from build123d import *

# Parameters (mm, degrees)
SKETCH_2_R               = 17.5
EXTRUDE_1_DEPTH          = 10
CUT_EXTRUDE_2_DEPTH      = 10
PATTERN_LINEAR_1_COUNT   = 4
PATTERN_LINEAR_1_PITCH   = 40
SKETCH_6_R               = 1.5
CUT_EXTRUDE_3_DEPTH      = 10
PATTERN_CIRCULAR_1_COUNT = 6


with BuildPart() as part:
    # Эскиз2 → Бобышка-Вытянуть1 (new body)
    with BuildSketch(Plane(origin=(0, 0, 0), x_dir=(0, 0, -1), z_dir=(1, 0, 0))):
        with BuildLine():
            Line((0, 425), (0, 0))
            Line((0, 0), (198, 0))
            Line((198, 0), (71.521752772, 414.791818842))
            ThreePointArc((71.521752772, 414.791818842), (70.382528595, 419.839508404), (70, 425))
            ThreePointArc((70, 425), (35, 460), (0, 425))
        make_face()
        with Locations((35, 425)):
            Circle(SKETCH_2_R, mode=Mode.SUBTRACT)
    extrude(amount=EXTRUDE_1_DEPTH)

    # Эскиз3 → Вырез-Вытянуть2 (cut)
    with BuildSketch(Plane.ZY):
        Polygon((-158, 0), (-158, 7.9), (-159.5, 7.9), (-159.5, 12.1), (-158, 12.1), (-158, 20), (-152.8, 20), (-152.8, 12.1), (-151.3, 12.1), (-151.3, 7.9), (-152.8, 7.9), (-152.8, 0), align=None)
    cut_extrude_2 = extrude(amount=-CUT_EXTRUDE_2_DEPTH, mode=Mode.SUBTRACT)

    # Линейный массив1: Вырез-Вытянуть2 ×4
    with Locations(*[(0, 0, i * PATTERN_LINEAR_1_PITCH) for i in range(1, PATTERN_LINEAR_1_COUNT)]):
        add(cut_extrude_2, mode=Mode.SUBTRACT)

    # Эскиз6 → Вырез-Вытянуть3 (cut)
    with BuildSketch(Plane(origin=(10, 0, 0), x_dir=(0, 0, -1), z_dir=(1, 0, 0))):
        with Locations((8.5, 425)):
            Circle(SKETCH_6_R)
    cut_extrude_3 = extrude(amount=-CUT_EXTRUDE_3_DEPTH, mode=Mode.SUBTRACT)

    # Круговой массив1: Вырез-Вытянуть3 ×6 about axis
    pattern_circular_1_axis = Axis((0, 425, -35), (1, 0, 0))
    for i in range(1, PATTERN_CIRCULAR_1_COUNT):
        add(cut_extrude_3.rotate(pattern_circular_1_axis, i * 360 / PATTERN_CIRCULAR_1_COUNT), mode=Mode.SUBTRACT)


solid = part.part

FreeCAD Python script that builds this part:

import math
import FreeCAD as App
import Part
import Sketcher

V = App.Vector
Q = App.Units.Quantity

doc = App.newDocument("Part")
body = doc.addObject("PartDesign::Body", "Body")

# Sketch on YZ plane
sketch1 = body.newObject("Sketcher::SketchObject", "Sketch")
sketch1.AttachmentSupport = (doc.getObject("YZ_Plane"), [""])
sketch1.MapMode = "FlatFace"
sketch1.addGeometry(Part.LineSegment(V(425, 0, 0), V(0, 0, 0)), False)
sketch1.addGeometry(Part.LineSegment(V(0, 0, 0), V(0, -198, 0)), False)
sketch1.addGeometry(Part.LineSegment(V(0, -198, 0), V(414.791819, -71.521753, 0)), False)
sketch1.addGeometry(Part.ArcOfCircle(Part.Circle(V(425, -105, 0), V(0, 0, 1), 35), math.radians(90), math.radians(106.957503)), False)
sketch1.addGeometry(Part.ArcOfCircle(Part.Circle(V(425, -35, 0), V(0, 0, 1), 35), math.radians(-90), math.radians(90)), False)
sketch1.addGeometry(Part.Circle(V(425, -35, 0), V(0, 0, 1), 17.5), False)
sketch1.addConstraint(Sketcher.Constraint("Coincident", 0, 2, 1, 1))
sketch1.addConstraint(Sketcher.Constraint("Coincident", 1, 2, 2, 1))
sketch1.addConstraint(Sketcher.Constraint("Tangent", 2, 2, 3, 2))
sketch1.addConstraint(Sketcher.Constraint("Tangent", 3, 1, 4, 1))
sketch1.addConstraint(Sketcher.Constraint("Tangent", 4, 2, 0, 1))
sketch1.addConstraint(Sketcher.Constraint("Horizontal", 0))
sketch1.addConstraint(Sketcher.Constraint("Vertical", 1))
sketch1.addConstraint(Sketcher.Constraint("Coincident", 0, 2, -1, 1))
sketch1.addConstraint(Sketcher.Constraint("Coincident", 5, 3, 4, 3))
sketch1.addConstraint(Sketcher.Constraint("Equal", 3, 4))
sketch1.addConstraint(Sketcher.Constraint("Vertical", 3, 3, 4, 3))
sketch1.addConstraint(Sketcher.Constraint("Diameter", 5, Q("35 mm")))
sketch1.addConstraint(Sketcher.Constraint("Radius", 3, Q("35 mm")))
sketch1.addConstraint(Sketcher.Constraint("DistanceX", 0, 2, 0, 1, Q("425 mm")))
sketch1.addConstraint(Sketcher.Constraint("DistanceY", 1, 2, 1, 1, Q("198 mm")))
pad1 = body.newObject("PartDesign::Pad", "Pad")
pad1.Profile = sketch1
pad1.Length = 10

# Sketch on YZ plane
sketch2 = body.newObject("Sketcher::SketchObject", "Sketch001")
sketch2.AttachmentSupport = (doc.getObject("YZ_Plane"), [""])
sketch2.MapMode = "FlatFace"
sketch2.addGeometry(Part.LineSegment(V(7.9, -158, 0), V(0, -158, 0)), False)
sketch2.addGeometry(Part.LineSegment(V(0, -158, 0), V(0, -152.8, 0)), False)
sketch2.addGeometry(Part.LineSegment(V(0, -152.8, 0), V(7.9, -152.8, 0)), False)
sketch2.addGeometry(Part.LineSegment(V(7.9, -152.8, 0), V(7.9, -151.3, 0)), False)
sketch2.addGeometry(Part.LineSegment(V(7.9, -151.3, 0), V(12.1, -151.3, 0)), False)
sketch2.addGeometry(Part.LineSegment(V(12.1, -151.3, 0), V(12.1, -152.8, 0)), False)
sketch2.addGeometry(Part.LineSegment(V(12.1, -152.8, 0), V(20, -152.8, 0)), False)
sketch2.addGeometry(Part.LineSegment(V(20, -152.8, 0), V(20, -158, 0)), False)
sketch2.addGeometry(Part.LineSegment(V(20, -158, 0), V(12.1, -158, 0)), False)
sketch2.addGeometry(Part.LineSegment(V(12.1, -158, 0), V(12.1, -159.5, 0)), False)
sketch2.addGeometry(Part.LineSegment(V(12.1, -159.5, 0), V(7.9, -159.5, 0)), False)
sketch2.addGeometry(Part.LineSegment(V(7.9, -159.5, 0), V(7.9, -158, 0)), False)
sketch2.addConstraint(Sketcher.Constraint("Coincident", 0, 2, 1, 1))
sketch2.addConstraint(Sketcher.Constraint("Coincident", 1, 2, 2, 1))
sketch2.addConstraint(Sketcher.Constraint("Coincident", 2, 2, 3, 1))
sketch2.addConstraint(Sketcher.Constraint("Coincident", 3, 2, 4, 1))
sketch2.addConstraint(Sketcher.Constraint("Coincident", 4, 2, 5, 1))
sketch2.addConstraint(Sketcher.Constraint("Coincident", 5, 2, 6, 1))
sketch2.addConstraint(Sketcher.Constraint("Coincident", 6, 2, 7, 1))
sketch2.addConstraint(Sketcher.Constraint("Coincident", 7, 2, 8, 1))
sketch2.addConstraint(Sketcher.Constraint("Coincident", 8, 2, 9, 1))
sketch2.addConstraint(Sketcher.Constraint("Coincident", 9, 2, 10, 1))
sketch2.addConstraint(Sketcher.Constraint("Coincident", 10, 2, 11, 1))
sketch2.addConstraint(Sketcher.Constraint("Coincident", 11, 2, 0, 1))
sketch2.addConstraint(Sketcher.Constraint("Horizontal", 0))
sketch2.addConstraint(Sketcher.Constraint("Vertical", 1))
sketch2.addConstraint(Sketcher.Constraint("Horizontal", 2))
sketch2.addConstraint(Sketcher.Constraint("Vertical", 3))
sketch2.addConstraint(Sketcher.Constraint("Horizontal", 4))
sketch2.addConstraint(Sketcher.Constraint("Vertical", 5))
sketch2.addConstraint(Sketcher.Constraint("Horizontal", 6))
sketch2.addConstraint(Sketcher.Constraint("Vertical", 7))
sketch2.addConstraint(Sketcher.Constraint("Horizontal", 8))
sketch2.addConstraint(Sketcher.Constraint("Vertical", 9))
sketch2.addConstraint(Sketcher.Constraint("Horizontal", 10))
sketch2.addConstraint(Sketcher.Constraint("Vertical", 11))
sketch2.addConstraint(Sketcher.Constraint("PointOnObject", 0, 2, -2))
sketch2.addConstraint(Sketcher.Constraint("Horizontal", 2, 2, 5, 2))
sketch2.addConstraint(Sketcher.Constraint("Horizontal", 0, 2, 7, 2))
sketch2.addConstraint(Sketcher.Constraint("Vertical", 5, 2, 8, 2))
sketch2.addConstraint(Sketcher.Constraint("Vertical", 3, 2, 10, 2))
sketch2.addConstraint(Sketcher.Constraint("Equal", 2, 6))
sketch2.addConstraint(Sketcher.Constraint("Equal", 5, 9))
sketch2.addConstraint(Sketcher.Constraint("DistanceX", 0, 2, 0, 1, Q("7.9 mm")))
sketch2.addConstraint(Sketcher.Constraint("DistanceX", 4, 1, 4, 2, Q("4.2 mm")))
sketch2.addConstraint(Sketcher.Constraint("DistanceY", 1, 1, 1, 2, Q("5.2 mm")))
sketch2.addConstraint(Sketcher.Constraint("DistanceY", 3, 1, 3, 2, Q("1.5 mm")))
sketch2.addConstraint(Sketcher.Constraint("DistanceY", 0, 2, -1, 1, Q("158 mm")))
pocket1 = body.newObject("PartDesign::Pocket", "Pocket")
pocket1.Profile = sketch2
pocket1.Length = 10
pocket1.Reversed = True
doc.recompute()

linearpattern = body.newObject("PartDesign::LinearPattern", "LinearPattern")
linearpattern.Originals = [pocket1]
linearpattern.Direction = (doc.getObject("Z_Axis"), [""])
linearpattern.Mode = "offset"
linearpattern.Offset = 40
linearpattern.Occurrences = 4
body.Tip = linearpattern

# Sketch on YZ plane
sketch3 = body.newObject("Sketcher::SketchObject", "Sketch002")
sketch3.AttachmentSupport = (doc.getObject("YZ_Plane"), [""])
sketch3.MapMode = "FlatFace"
sketch3.AttachmentOffset = App.Placement(V(0, 0, 10), App.Rotation())
sketch3.addGeometry(Part.Circle(V(425, -8.5, 0), V(0, 0, 1), 1.5), False)
sketch3.addConstraint(Sketcher.Constraint("Diameter", 0, Q("3 mm")))
sketch3.addConstraint(Sketcher.Constraint("DistanceX", -1, 1, 0, 3, Q("425 mm")))
sketch3.addConstraint(Sketcher.Constraint("DistanceY", 0, 3, -1, 1, Q("8.5 mm")))
pocket2 = body.newObject("PartDesign::Pocket", "Pocket001")
pocket2.Profile = sketch3
pocket2.Length = 10
doc.recompute()

datumline = body.newObject("PartDesign::Line", "DatumLine")
datumline.Placement = App.Placement(V(0, 425, -35), App.Rotation(V(0, 0, 1), V(1, 0, 0)))
polarpattern = body.newObject("PartDesign::PolarPattern", "PolarPattern")
polarpattern.Originals = [pocket2]
polarpattern.Axis = (datumline, [""])
polarpattern.Angle = 360
polarpattern.Occurrences = 6
body.Tip = polarpattern

doc.recompute()
